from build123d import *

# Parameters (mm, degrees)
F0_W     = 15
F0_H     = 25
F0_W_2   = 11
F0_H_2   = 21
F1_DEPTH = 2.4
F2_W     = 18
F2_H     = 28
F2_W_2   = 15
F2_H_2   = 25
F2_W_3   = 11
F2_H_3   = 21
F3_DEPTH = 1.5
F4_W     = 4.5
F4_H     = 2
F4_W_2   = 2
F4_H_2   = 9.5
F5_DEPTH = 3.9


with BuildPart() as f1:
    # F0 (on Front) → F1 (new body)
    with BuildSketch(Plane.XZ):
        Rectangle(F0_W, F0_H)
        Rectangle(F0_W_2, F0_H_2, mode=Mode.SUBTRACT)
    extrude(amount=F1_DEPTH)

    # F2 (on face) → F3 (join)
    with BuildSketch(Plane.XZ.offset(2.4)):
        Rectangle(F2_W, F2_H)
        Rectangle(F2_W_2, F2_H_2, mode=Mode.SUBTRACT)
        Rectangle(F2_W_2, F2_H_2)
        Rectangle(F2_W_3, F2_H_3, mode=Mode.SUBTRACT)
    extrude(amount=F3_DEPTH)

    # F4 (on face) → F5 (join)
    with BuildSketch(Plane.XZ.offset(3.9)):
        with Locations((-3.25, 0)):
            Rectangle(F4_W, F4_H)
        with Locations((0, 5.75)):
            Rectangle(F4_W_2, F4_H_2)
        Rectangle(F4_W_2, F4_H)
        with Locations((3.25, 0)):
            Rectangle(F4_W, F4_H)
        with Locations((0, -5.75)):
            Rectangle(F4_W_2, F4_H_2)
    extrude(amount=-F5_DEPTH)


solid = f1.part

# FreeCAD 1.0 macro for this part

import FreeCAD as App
import Part
import Sketcher
from FreeCAD import Vector

doc = App.newDocument("Part")
body = doc.addObject("PartDesign::Body", "Body")

sketch1 = doc.addObject("Sketcher::SketchObject", "Sketch")
body.addObject(sketch1)
sketch1.AttachmentSupport = (doc.XZ_Plane, [""])
sketch1.MapMode = "FlatFace"
sketch1.addGeometry([
    Part.LineSegment(Vector(-8, 12, 0), Vector(-8, -12, 0)),
    Part.LineSegment(Vector(-8, -12, 0), Vector(8, -12, 0)),
    Part.LineSegment(Vector(8, -12, 0), Vector(8, 12, 0)),
    Part.LineSegment(Vector(8, 12, 0), Vector(-8, 12, 0)),
    Part.LineSegment(Vector(6, -10, 0), Vector(-6, -10, 0)),
    Part.LineSegment(Vector(-6, -10, 0), Vector(-6, 10, 0)),
    Part.LineSegment(Vector(-6, 10, 0), Vector(6, 10, 0)),
    Part.LineSegment(Vector(6, 10, 0), Vector(6, -10, 0)),
], False)
sketch1.addConstraint([
    Sketcher.Constraint("Coincident", 0, 2, 1, 1),
    Sketcher.Constraint("Coincident", 1, 2, 2, 1),
    Sketcher.Constraint("Coincident", 2, 2, 3, 1),
    Sketcher.Constraint("Coincident", 3, 2, 0, 1),
    Sketcher.Constraint("Coincident", 4, 2, 5, 1),
    Sketcher.Constraint("Coincident", 5, 2, 6, 1),
    Sketcher.Constraint("Coincident", 6, 2, 7, 1),
    Sketcher.Constraint("Coincident", 7, 2, 4, 1),
    Sketcher.Constraint("Vertical", 0),
    Sketcher.Constraint("Horizontal", 1),
    Sketcher.Constraint("Vertical", 2),
    Sketcher.Constraint("Horizontal", 3),
    Sketcher.Constraint("Horizontal", 4),
    Sketcher.Constraint("Vertical", 5),
    Sketcher.Constraint("Horizontal", 6),
    Sketcher.Constraint("Vertical", 7),
    Sketcher.Constraint("Symmetric", 0, 2, 2, 2, -1, 1),
    Sketcher.Constraint("Symmetric", 4, 2, 6, 2, -1, 1),
    Sketcher.Constraint("DistanceX", 1, 1, 1, 2, 15.0),
    Sketcher.Constraint("DistanceX", 4, 2, 4, 1, 11.0),
    Sketcher.Constraint("DistanceY", 0, 2, 0, 1, 25.0),
    Sketcher.Constraint("DistanceY", 5, 1, 5, 2, 21.0),
])
pad1 = doc.addObject("PartDesign::Pad", "Pad")
body.addObject(pad1)
pad1.Profile = sketch1
pad1.Length = 2.4

sketch2 = doc.addObject("Sketcher::SketchObject", "Sketch001")
body.addObject(sketch2)
sketch2.AttachmentSupport = (doc.XZ_Plane, [""])
sketch2.MapMode = "FlatFace"
sketch2.AttachmentOffset = App.Placement(Vector(0, 0, 2.4), App.Rotation())
sketch2.addGeometry([
    Part.LineSegment(Vector(-9, 14, 0), Vector(-9, -14, 0)),
    Part.LineSegment(Vector(-9, -14, 0), Vector(9, -14, 0)),
    Part.LineSegment(Vector(9, -14, 0), Vector(9, 14, 0)),
    Part.LineSegment(Vector(9, 14, 0), Vector(-9, 14, 0)),
    Part.LineSegment(Vector(6, -10, 0), Vector(-6, -10, 0)),
    Part.LineSegment(Vector(-6, -10, 0), Vector(-6, 10, 0)),
    Part.LineSegment(Vector(-6, 10, 0), Vector(6, 10, 0)),
    Part.LineSegment(Vector(6, 10, 0), Vector(6, -10, 0)),
], False)
sketch2.addConstraint([
    Sketcher.Constraint("Coincident", 0, 2, 1, 1),
    Sketcher.Constraint("Coincident", 1, 2, 2, 1),
    Sketcher.Constraint("Coincident", 2, 2, 3, 1),
    Sketcher.Constraint("Coincident", 3, 2, 0, 1),
    Sketcher.Constraint("Coincident", 4, 2, 5, 1),
    Sketcher.Constraint("Coincident", 5, 2, 6, 1),
    Sketcher.Constraint("Coincident", 6, 2, 7, 1),
    Sketcher.Constraint("Coincident", 7, 2, 4, 1),
    Sketcher.Constraint("Vertical", 0),
    Sketcher.Constraint("Horizontal", 1),
    Sketcher.Constraint("Vertical", 2),
    Sketcher.Constraint("Horizontal", 3),
    Sketcher.Constraint("Horizontal", 4),
    Sketcher.Constraint("Vertical", 5),
    Sketcher.Constraint("Horizontal", 6),
    Sketcher.Constraint("Vertical", 7),
    Sketcher.Constraint("Symmetric", 0, 2, 2, 2, -1, 1),
    Sketcher.Constraint("Symmetric", 4, 2, 6, 2, -1, 1),
    Sketcher.Constraint("DistanceX", 1, 1, 1, 2, 18.0),
    Sketcher.Constraint("DistanceX", 4, 2, 4, 1, 11.0),
    Sketcher.Constraint("DistanceY", 0, 2, 0, 1, 28.0),
    Sketcher.Constraint("DistanceY", 5, 1, 5, 2, 21.0),
])
pad2 = doc.addObject("PartDesign::Pad", "Pad001")
body.addObject(pad2)
pad2.Profile = sketch2
pad2.Length = 1.5

sketch3 = doc.addObject("Sketcher::SketchObject", "Sketch002")
body.addObject(sketch3)
sketch3.AttachmentSupport = (doc.XZ_Plane, [""])
sketch3.MapMode = "FlatFace"
sketch3.AttachmentOffset = App.Placement(Vector(0, 0, 3.9), App.Rotation())
sketch3.addGeometry([
    Part.LineSegment(Vector(-5.5, 1, 0), Vector(-5.5, -1, 0)),
    Part.LineSegment(Vector(-5.5, -1, 0), Vector(-1, -1, 0)),
    Part.LineSegment(Vector(-1, -1, 0), Vector(-1, -10.5, 0)),
    Part.LineSegment(Vector(-1, -10.5, 0), Vector(1, -10.5, 0)),
    Part.LineSegment(Vector(1, -10.5, 0), Vector(1, -1, 0)),
    Part.LineSegment(Vector(1, -1, 0), Vector(5.5, -1, 0)),
    Part.LineSegment(Vector(5.5, -1, 0), Vector(5.5, 1, 0)),
    Part.LineSegment(Vector(5.5, 1, 0), Vector(1, 1, 0)),
    Part.LineSegment(Vector(1, 1, 0), Vector(1, 10.5, 0)),
    Part.LineSegment(Vector(1, 10.5, 0), Vector(-1, 10.5, 0)),
    Part.LineSegment(Vector(-1, 10.5, 0), Vector(-1, 1, 0)),
    Part.LineSegment(Vector(-1, 1, 0), Vector(-5.5, 1, 0)),
], False)
sketch3.addConstraint([
    Sketcher.Constraint("Coincident", 0, 2, 1, 1),
    Sketcher.Constraint("Coincident", 1, 2, 2, 1),
    Sketcher.Constraint("Coincident", 2, 2, 3, 1),
    Sketcher.Constraint("Coincident", 3, 2, 4, 1),
    Sketcher.Constraint("Coincident", 4, 2, 5, 1),
    Sketcher.Constraint("Coincident", 5, 2, 6, 1),
    Sketcher.Constraint("Coincident", 6, 2, 7, 1),
    Sketcher.Constraint("Coincident", 7, 2, 8, 1),
    Sketcher.Constraint("Coincident", 8, 2, 9, 1),
    Sketcher.Constraint("Coincident", 9, 2, 10, 1),
    Sketcher.Constraint("Coincident", 10, 2, 11, 1),
    Sketcher.Constraint("Coincident", 11, 2, 0, 1),
    Sketcher.Constraint("Vertical", 0),
    Sketcher.Constraint("Horizontal", 1),
    Sketcher.Constraint("Vertical", 2),
    Sketcher.Constraint("Horizontal", 3),
    Sketcher.Constraint("Vertical", 4),
    Sketcher.Constraint("Horizontal", 5),
    Sketcher.Constraint("Vertical", 6),
    Sketcher.Constraint("Horizontal", 7),
    Sketcher.Constraint("Vertical", 8),
    Sketcher.Constraint("Horizontal", 9),
    Sketcher.Constraint("Vertical", 10),
    Sketcher.Constraint("Horizontal", 11),
    Sketcher.Constraint("Symmetric", 0, 2, 6, 2, -1, 1),
    Sketcher.Constraint("Symmetric", 2, 2, 8, 2, -1, 1),
    Sketcher.Constraint("Symmetric", 4, 2, 10, 2, -1, 1),
    Sketcher.Constraint("Symmetric", 1, 2, 4, 2, -2),
    Sketcher.Constraint("Equal", 9, 0),
    Sketcher.Constraint("DistanceX", 3, 1, 3, 2, 2.0),
    Sketcher.Constraint("DistanceX", 1, 1, 1, 2, 4.5),
    Sketcher.Constraint("DistanceY", 2, 2, 2, 1, 9.5),
])
pad3 = doc.addObject("PartDesign::Pad", "Pad002")
body.addObject(pad3)
pad3.Profile = sketch3
pad3.Length = 3.9
pad3.Reversed = True

doc.recompute()
